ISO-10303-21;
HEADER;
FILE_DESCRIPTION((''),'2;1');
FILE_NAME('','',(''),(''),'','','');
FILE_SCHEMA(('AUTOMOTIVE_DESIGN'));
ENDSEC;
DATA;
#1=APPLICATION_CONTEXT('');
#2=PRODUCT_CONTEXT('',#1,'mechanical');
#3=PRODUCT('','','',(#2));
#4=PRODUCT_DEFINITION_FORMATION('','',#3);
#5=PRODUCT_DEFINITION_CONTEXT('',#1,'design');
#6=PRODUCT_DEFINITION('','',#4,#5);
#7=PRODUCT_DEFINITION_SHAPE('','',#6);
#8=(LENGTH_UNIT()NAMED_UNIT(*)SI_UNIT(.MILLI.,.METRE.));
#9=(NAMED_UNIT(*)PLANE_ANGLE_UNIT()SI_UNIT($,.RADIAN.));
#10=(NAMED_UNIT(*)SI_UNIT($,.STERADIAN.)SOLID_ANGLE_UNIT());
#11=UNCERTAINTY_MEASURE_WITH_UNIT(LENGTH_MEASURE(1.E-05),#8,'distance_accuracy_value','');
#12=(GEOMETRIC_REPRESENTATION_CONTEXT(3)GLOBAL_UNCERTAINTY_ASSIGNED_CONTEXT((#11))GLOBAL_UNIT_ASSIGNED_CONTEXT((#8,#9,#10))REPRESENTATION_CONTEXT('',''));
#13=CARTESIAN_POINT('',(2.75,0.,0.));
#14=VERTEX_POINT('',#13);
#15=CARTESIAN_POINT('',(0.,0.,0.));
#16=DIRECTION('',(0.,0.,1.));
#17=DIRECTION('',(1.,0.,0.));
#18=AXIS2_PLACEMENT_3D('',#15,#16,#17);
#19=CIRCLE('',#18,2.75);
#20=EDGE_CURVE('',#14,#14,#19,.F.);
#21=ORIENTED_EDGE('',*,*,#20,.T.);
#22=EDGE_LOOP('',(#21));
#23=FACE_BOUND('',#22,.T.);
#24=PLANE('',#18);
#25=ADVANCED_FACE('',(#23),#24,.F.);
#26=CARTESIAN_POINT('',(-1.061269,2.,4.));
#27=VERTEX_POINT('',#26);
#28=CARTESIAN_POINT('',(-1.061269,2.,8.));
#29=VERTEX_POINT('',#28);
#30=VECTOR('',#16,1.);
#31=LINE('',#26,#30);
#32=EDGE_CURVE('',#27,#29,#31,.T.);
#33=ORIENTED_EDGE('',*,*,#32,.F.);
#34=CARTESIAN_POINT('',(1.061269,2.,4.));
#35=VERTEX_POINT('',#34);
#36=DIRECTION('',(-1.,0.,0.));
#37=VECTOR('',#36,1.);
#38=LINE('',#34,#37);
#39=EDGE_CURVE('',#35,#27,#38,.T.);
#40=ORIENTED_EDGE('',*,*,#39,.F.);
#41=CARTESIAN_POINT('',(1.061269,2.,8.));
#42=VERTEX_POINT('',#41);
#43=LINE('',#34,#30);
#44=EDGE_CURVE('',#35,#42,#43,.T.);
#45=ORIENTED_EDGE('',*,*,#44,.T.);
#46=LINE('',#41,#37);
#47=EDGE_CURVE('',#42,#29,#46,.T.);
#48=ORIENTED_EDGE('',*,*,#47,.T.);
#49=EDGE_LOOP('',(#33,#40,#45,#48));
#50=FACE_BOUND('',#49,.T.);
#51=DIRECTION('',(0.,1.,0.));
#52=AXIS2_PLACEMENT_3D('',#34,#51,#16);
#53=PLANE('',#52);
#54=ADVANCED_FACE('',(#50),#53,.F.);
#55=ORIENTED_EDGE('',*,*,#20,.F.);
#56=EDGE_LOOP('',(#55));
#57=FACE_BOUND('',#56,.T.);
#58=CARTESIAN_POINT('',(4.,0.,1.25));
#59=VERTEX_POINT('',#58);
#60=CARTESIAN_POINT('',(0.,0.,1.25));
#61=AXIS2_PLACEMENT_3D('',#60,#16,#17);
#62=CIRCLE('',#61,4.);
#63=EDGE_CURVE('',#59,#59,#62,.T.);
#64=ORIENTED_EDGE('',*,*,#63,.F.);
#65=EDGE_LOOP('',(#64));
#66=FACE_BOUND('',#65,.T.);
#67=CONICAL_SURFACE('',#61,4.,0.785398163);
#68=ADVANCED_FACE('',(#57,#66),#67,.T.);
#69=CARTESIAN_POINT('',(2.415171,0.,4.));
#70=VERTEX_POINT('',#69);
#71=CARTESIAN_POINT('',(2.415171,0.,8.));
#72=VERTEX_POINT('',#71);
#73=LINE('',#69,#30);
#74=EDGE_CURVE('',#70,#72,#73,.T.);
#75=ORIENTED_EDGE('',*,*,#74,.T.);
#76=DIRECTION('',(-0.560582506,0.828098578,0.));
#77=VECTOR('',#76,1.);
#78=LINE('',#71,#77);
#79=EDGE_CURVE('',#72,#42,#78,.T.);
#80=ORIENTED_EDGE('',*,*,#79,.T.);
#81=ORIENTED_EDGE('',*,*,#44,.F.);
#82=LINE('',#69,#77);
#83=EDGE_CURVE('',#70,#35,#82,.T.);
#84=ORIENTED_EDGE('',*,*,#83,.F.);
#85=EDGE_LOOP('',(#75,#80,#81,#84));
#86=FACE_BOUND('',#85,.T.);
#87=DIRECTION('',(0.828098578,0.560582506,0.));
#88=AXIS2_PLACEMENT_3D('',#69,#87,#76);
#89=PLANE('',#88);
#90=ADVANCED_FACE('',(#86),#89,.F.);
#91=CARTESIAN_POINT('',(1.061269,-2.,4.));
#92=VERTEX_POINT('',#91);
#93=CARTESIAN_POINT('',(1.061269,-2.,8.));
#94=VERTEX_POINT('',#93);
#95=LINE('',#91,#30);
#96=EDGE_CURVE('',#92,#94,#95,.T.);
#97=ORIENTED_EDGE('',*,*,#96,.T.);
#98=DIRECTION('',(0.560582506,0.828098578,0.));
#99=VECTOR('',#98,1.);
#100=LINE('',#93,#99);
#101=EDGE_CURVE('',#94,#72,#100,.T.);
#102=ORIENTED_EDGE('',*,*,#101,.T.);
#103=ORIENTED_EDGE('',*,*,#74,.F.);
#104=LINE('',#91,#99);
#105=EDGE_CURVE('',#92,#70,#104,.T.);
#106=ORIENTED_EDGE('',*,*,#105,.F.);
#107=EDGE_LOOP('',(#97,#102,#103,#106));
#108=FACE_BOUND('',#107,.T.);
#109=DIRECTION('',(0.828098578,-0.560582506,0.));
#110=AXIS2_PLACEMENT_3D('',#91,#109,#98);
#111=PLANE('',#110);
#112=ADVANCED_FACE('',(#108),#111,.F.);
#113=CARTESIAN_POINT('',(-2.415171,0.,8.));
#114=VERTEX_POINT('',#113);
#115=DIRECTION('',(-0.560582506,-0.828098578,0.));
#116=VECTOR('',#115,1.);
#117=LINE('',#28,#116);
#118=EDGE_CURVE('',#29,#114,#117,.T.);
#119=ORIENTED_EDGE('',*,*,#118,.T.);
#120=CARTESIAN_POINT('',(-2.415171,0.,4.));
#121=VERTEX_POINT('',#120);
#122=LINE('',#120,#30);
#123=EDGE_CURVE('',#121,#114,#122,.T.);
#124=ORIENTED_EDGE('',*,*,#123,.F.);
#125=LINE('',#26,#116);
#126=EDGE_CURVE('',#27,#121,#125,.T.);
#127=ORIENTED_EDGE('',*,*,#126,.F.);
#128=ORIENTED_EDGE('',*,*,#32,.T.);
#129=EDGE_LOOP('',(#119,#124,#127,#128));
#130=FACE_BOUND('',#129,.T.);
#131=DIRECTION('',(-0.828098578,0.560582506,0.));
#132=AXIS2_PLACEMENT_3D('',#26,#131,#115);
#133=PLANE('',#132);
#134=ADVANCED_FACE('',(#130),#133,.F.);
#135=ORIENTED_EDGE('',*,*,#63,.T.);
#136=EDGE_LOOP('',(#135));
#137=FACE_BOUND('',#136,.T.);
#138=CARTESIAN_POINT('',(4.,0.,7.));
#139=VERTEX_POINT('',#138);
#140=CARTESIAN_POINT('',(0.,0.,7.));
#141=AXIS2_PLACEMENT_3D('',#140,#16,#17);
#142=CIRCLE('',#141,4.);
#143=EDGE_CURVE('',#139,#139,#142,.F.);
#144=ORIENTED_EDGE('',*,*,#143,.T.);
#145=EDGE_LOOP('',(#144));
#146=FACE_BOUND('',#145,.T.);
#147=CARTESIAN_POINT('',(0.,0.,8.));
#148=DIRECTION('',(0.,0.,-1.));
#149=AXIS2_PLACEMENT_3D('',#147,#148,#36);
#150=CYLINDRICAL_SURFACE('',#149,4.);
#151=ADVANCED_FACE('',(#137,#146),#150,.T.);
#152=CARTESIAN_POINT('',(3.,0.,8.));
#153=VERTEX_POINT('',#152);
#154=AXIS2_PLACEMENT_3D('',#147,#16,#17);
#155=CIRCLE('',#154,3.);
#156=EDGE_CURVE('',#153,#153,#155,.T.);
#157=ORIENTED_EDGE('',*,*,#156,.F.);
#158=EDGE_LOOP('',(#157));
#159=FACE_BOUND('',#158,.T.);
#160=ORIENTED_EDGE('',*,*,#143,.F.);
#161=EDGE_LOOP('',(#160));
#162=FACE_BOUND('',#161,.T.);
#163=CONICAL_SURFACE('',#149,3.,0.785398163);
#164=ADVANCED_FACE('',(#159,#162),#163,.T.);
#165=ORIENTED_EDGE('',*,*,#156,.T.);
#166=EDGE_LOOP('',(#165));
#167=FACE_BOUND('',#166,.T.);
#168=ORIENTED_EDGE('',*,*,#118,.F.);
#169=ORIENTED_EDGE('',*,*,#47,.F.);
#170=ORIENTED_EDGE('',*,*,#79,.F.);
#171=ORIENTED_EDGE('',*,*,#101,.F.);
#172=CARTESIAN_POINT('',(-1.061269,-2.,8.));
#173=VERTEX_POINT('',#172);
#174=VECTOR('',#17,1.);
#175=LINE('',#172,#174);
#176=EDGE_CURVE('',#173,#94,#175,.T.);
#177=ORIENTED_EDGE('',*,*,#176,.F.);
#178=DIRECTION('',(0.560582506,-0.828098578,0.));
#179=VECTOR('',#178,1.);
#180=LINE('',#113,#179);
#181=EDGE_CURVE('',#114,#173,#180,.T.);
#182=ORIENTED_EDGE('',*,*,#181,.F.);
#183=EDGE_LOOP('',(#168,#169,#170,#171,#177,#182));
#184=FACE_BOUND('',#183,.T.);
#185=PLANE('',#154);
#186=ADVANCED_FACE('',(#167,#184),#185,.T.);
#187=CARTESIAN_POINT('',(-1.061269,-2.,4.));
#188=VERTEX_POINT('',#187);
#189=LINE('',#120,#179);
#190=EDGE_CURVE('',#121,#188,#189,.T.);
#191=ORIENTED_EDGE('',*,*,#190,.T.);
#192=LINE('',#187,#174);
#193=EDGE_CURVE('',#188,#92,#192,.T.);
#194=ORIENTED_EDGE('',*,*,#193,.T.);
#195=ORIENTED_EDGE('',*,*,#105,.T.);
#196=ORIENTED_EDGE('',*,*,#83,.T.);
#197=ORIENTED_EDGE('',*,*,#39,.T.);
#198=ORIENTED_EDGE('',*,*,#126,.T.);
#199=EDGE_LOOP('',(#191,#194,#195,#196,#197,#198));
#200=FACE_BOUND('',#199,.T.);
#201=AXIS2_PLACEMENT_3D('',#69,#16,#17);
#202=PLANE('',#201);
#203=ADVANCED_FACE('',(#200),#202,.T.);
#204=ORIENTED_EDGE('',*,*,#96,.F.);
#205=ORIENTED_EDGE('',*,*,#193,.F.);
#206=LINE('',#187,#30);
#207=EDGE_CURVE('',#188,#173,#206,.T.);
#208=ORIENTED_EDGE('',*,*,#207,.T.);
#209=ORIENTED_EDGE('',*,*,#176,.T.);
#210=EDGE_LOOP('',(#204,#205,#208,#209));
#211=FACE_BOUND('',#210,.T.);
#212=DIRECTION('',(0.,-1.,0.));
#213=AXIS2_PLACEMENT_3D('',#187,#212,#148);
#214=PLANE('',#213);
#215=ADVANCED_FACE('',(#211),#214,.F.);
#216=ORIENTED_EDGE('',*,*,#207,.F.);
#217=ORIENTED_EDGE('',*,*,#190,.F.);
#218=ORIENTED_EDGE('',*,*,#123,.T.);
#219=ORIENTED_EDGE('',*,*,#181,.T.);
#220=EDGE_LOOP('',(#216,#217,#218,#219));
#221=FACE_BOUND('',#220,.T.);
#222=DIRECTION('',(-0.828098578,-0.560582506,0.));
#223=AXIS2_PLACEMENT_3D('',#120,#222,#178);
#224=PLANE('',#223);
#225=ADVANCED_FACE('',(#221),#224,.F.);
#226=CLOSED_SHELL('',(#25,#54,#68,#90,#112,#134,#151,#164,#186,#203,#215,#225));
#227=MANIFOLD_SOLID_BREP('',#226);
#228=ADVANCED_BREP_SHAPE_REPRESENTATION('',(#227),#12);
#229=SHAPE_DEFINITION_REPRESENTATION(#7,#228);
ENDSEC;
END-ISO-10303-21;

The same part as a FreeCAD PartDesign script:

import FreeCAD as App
import Part
import Sketcher

V = App.Vector


def edges_at(feature, points):
    """Names of the edges that pass closest to the given points."""
    edges = feature.Shape.Edges
    near = lambda p: min(range(len(edges)), key=lambda i: edges[i].distToShape(Part.Vertex(*p))[0])
    return sorted({f"Edge{near(p) + 1}" for p in points})

doc = App.newDocument("Part")
body = doc.addObject("PartDesign::Body", "Body")

# Sketch on XY plane
sketch1 = body.newObject("Sketcher::SketchObject", "Sketch")
sketch1.AttachmentSupport = (doc.getObject("XY_Plane"), [""])
sketch1.MapMode = "FlatFace"
sketch1.addGeometry(Part.Circle(V(0, 0, 0), V(0, 0, 1), 4), False)
sketch1.addConstraint([
    Sketcher.Constraint("Coincident", 0, 3, -1, 1),
    Sketcher.Constraint("Diameter", 0, 8.0),
])
pad1 = body.newObject("PartDesign::Pad", "Pad")
pad1.Profile = sketch1
pad1.Length = 8
doc.recompute()

chamfer = body.newObject("PartDesign::Chamfer", "Chamfer")
chamfer.Base = (pad1, edges_at(pad1, [(-4, 0, 0)]))
chamfer.Size = 1.25

# Sketch on XY plane
sketch2 = body.newObject("Sketcher::SketchObject", "Sketch001")
sketch2.AttachmentSupport = (doc.getObject("XY_Plane"), [""])
sketch2.MapMode = "FlatFace"
sketch2.AttachmentOffset = App.Placement(V(0, 0, 8), App.Rotation())
sketch2.addGeometry([
    Part.LineSegment(V(2.415171, 0, 0), V(1.061269, 2, 0)),  # 0
    Part.LineSegment(V(1.061269, 2, 0), V(-1.061269, 2, 0)),  # 1
    Part.LineSegment(V(-1.061269, 2, 0), V(-2.415171, 0, 0)),  # 2
    Part.LineSegment(V(-2.415171, 0, 0), V(-1.061269, -2, 0)),  # 3
    Part.LineSegment(V(-1.061269, -2, 0), V(1.061269, -2, 0)),  # 4
    Part.LineSegment(V(1.061269, -2, 0), V(2.415171, 0, 0)),  # 5
], False)
sketch2.addConstraint([
    Sketcher.Constraint("Coincident", 0, 2, 1, 1),
    Sketcher.Constraint("Coincident", 1, 2, 2, 1),
    Sketcher.Constraint("Coincident", 2, 2, 3, 1),
    Sketcher.Constraint("Coincident", 3, 2, 4, 1),
    Sketcher.Constraint("Coincident", 4, 2, 5, 1),
    Sketcher.Constraint("Coincident", 5, 2, 0, 1),
    Sketcher.Constraint("Horizontal", 1),
    Sketcher.Constraint("Horizontal", 4),
    Sketcher.Constraint("Symmetric", 0, 2, 3, 2, -1, 1),
    Sketcher.Constraint("Symmetric", 2, 2, 5, 2, -1, 1),
    Sketcher.Constraint("PointOnObject", 2, 2, -1),
    Sketcher.Constraint("Parallel", 2, 5),
    Sketcher.Constraint("Vertical", 1, 2, 3, 2),
    Sketcher.Constraint("DistanceY", -1, 1, 0, 2, 2.0),
    Sketcher.Constraint("Distance", 0, 2.415171),
    Sketcher.Constraint("DistanceX", 1, 2, 1, 1, 2.122537),
])
pocket1 = body.newObject("PartDesign::Pocket", "Pocket")
pocket1.Profile = sketch2
pocket1.Length = 4
doc.recompute()

chamfer2 = body.newObject("PartDesign::Chamfer", "Chamfer001")
chamfer2.Base = (pocket1, edges_at(pocket1, [(-4, 0, 8)]))
chamfer2.Size = 1

doc.recompute()
